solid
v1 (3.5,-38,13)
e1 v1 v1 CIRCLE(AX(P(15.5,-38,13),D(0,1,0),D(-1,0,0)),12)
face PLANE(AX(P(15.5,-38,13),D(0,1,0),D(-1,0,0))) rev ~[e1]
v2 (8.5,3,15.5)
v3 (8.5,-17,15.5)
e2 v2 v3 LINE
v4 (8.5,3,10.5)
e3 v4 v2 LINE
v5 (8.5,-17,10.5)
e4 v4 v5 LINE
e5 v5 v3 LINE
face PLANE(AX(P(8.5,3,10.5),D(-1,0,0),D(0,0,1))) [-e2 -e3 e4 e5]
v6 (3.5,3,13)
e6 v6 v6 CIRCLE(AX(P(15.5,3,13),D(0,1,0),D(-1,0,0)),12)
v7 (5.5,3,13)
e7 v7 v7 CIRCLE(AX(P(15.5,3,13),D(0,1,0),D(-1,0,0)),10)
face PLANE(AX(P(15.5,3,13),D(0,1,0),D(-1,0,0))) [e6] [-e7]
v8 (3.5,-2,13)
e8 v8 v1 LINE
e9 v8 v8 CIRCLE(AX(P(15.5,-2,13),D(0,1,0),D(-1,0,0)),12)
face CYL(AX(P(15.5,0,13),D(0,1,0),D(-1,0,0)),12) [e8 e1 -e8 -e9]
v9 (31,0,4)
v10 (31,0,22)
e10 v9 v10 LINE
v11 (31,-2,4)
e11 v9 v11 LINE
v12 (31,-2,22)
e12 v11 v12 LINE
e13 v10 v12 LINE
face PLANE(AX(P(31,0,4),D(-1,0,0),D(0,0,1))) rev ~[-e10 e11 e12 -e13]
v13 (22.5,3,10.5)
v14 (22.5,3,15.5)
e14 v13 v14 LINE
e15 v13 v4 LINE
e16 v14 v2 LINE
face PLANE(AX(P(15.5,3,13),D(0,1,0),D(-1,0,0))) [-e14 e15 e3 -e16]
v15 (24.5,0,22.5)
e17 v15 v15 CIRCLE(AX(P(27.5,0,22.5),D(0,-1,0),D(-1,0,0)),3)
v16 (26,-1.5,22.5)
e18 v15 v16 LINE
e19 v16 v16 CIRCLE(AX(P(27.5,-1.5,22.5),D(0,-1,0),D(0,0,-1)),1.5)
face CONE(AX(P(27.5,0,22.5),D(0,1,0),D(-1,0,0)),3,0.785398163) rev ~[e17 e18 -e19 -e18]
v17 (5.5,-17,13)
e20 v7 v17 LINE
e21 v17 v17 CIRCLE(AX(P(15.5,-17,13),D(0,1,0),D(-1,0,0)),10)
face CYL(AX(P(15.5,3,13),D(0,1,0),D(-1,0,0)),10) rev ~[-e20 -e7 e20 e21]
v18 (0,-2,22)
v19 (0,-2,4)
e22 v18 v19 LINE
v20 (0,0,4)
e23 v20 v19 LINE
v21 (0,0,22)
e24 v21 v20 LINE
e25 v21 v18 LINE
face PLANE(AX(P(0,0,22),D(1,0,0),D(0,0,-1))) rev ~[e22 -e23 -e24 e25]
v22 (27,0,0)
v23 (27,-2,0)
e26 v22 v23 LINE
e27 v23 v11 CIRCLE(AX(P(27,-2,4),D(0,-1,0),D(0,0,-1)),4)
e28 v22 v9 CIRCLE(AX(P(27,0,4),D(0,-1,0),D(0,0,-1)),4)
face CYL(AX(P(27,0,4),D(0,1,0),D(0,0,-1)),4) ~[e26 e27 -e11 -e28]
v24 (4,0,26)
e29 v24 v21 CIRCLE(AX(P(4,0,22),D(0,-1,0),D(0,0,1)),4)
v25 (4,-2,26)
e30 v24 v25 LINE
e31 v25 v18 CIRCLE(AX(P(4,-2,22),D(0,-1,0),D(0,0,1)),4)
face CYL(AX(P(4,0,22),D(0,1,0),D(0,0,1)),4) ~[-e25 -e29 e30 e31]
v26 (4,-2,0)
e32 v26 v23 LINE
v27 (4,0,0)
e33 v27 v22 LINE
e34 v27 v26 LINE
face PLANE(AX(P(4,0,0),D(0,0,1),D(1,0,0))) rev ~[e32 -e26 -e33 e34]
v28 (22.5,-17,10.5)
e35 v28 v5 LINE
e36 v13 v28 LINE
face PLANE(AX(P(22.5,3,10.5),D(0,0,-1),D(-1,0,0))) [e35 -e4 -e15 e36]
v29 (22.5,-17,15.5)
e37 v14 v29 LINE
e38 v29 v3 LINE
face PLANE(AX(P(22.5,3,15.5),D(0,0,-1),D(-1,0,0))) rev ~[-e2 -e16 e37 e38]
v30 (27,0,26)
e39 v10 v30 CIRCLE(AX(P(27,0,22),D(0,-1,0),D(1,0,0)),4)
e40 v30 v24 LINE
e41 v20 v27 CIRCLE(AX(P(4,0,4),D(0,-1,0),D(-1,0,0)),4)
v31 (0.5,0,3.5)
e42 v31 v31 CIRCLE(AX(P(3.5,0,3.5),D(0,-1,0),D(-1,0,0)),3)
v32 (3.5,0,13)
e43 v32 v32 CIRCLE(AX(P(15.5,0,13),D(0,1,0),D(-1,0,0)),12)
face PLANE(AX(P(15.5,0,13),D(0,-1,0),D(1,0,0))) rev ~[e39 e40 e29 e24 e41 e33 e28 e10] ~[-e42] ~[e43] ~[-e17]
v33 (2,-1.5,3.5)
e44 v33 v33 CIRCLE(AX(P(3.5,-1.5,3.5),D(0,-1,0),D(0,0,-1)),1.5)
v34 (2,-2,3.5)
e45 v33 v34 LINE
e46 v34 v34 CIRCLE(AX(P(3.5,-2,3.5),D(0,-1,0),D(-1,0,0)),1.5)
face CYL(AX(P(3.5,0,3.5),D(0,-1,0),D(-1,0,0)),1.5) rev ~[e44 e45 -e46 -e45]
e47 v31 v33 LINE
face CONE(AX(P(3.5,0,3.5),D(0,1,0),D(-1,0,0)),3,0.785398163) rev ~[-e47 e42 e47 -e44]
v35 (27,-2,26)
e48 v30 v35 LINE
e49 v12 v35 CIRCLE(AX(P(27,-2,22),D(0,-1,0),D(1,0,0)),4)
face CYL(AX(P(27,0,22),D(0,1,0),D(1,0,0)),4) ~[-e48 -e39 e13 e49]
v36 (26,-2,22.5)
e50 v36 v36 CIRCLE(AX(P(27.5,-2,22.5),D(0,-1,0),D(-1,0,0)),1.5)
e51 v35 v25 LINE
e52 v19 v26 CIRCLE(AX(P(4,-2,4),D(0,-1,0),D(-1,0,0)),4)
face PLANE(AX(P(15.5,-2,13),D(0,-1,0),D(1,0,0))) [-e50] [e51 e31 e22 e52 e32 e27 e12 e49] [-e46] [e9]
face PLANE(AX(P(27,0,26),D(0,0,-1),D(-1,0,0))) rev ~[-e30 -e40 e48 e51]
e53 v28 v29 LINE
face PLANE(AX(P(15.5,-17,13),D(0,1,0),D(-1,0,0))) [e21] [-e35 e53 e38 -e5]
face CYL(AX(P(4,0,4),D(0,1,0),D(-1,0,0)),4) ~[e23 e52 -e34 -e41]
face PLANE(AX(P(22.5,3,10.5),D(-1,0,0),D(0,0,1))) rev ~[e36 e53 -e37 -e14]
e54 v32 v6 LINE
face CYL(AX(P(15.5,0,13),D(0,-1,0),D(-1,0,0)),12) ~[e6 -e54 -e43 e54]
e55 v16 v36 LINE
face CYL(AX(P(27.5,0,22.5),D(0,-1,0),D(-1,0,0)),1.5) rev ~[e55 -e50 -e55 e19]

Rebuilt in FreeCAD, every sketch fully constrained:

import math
import FreeCAD as App
import Part
import Sketcher

V = App.Vector

doc = App.newDocument("Part")
body = doc.addObject("PartDesign::Body", "Body")

# Sketch on XZ plane
sketch1 = body.newObject("Sketcher::SketchObject", "Sketch")
sketch1.AttachmentSupport = (doc.getObject("XZ_Plane"), [""])
sketch1.MapMode = "FlatFace"
sketch1.addGeometry(Part.ArcOfCircle(Part.Circle(V(4, 4, 0), V(0, 0, 1), 4), math.radians(180), math.radians(270)), False)
sketch1.addGeometry(Part.LineSegment(V(4, 0, 0), V(27, 0, 0)), False)
sketch1.addGeometry(Part.ArcOfCircle(Part.Circle(V(27, 4, 0), V(0, 0, 1), 4), math.radians(-90), math.radians(0)), False)
sketch1.addGeometry(Part.LineSegment(V(31, 4, 0), V(31, 22, 0)), False)
sketch1.addGeometry(Part.ArcOfCircle(Part.Circle(V(27, 22, 0), V(0, 0, 1), 4), math.radians(0), math.radians(90)), False)
sketch1.addGeometry(Part.LineSegment(V(27, 26, 0), V(4, 26, 0)), False)
sketch1.addGeometry(Part.ArcOfCircle(Part.Circle(V(4, 22, 0), V(0, 0, 1), 4), math.radians(90), math.radians(180)), False)
sketch1.addGeometry(Part.LineSegment(V(0, 22, 0), V(0, 4, 0)), False)
sketch1.addConstraint(Sketcher.Constraint("Tangent", 0, 2, 1, 1))
sketch1.addConstraint(Sketcher.Constraint("Tangent", 1, 2, 2, 1))
sketch1.addConstraint(Sketcher.Constraint("Tangent", 2, 2, 3, 1))
sketch1.addConstraint(Sketcher.Constraint("Tangent", 3, 2, 4, 1))
sketch1.addConstraint(Sketcher.Constraint("Tangent", 4, 2, 5, 1))
sketch1.addConstraint(Sketcher.Constraint("Tangent", 5, 2, 6, 1))
sketch1.addConstraint(Sketcher.Constraint("Tangent", 6, 2, 7, 1))
sketch1.addConstraint(Sketcher.Constraint("Tangent", 7, 2, 0, 1))
sketch1.addConstraint(Sketcher.Constraint("Horizontal", 1))
sketch1.addConstraint(Sketcher.Constraint("Vertical", 3))
sketch1.addConstraint(Sketcher.Constraint("Horizontal", 5))
sketch1.addConstraint(Sketcher.Constraint("Vertical", 7))
sketch1.addConstraint(Sketcher.Constraint("Equal", 0, 2))
sketch1.addConstraint(Sketcher.Constraint("Equal", 2, 4))
sketch1.addConstraint(Sketcher.Constraint("Equal", 4, 6))
sketch1.addConstraint(Sketcher.Constraint("PointOnObject", 0, 2, -1))
sketch1.addConstraint(Sketcher.Constraint("PointOnObject", 6, 2, -2))
sketch1.addConstraint(Sketcher.Constraint("Radius", 0, 4.0))
sketch1.addConstraint(Sketcher.Constraint("DistanceX", 1, 1, 1, 2, 23.0))
sketch1.addConstraint(Sketcher.Constraint("DistanceY", 3, 1, 3, 2, 18.0))
pad1 = body.newObject("PartDesign::Pad", "Pad")
pad1.Profile = sketch1
pad1.Length = 2

# Sketch on XZ plane
sketch2 = body.newObject("Sketcher::SketchObject", "Sketch001")
sketch2.AttachmentSupport = (doc.getObject("XZ_Plane"), [""])
sketch2.MapMode = "FlatFace"
sketch2.addGeometry(Part.Circle(V(27.5, 22.5, 0), V(0, 0, 1), 1.5), False)
sketch2.addGeometry(Part.Circle(V(3.5, 3.5, 0), V(0, 0, 1), 1.5), False)
sketch2.addConstraint(Sketcher.Constraint("Equal", 0, 1))
sketch2.addConstraint(Sketcher.Constraint("Diameter", 0, 3.0))
sketch2.addConstraint(Sketcher.Constraint("DistanceX", 1, 3, 0, 3, 24.0))
sketch2.addConstraint(Sketcher.Constraint("DistanceY", 1, 3, 0, 3, 19.0))
sketch2.addConstraint(Sketcher.Constraint("DistanceX", -1, 1, 0, 3, 27.5))
sketch2.addConstraint(Sketcher.Constraint("DistanceY", -1, 1, 0, 3, 22.5))
doc.recompute()
hole = body.newObject("PartDesign::Hole", "Hole")
hole.Profile = sketch2
hole.ThreadType = "None"
hole.Diameter = 3
hole.DepthType = "ThroughAll"
hole.HoleCutType = "Countersink"
hole.HoleCutDiameter = 6
hole.HoleCutCountersinkAngle = 90
hole.Reversed = True

# Sketch on XZ plane
sketch3 = body.newObject("Sketcher::SketchObject", "Sketch002")
sketch3.AttachmentSupport = (doc.getObject("XZ_Plane"), [""])
sketch3.MapMode = "FlatFace"
sketch3.addGeometry(Part.Circle(V(16, 13, 0), V(0, 0, 1), 12), False)
sketch3.addConstraint(Sketcher.Constraint("Diameter", 0, 24.0))
sketch3.addConstraint(Sketcher.Constraint("DistanceY", -1, 1, 0, 3, 13.0))
sketch3.addConstraint(Sketcher.Constraint("DistanceX", -1, 1, 0, 3, 15.5))
pad2 = body.newObject("PartDesign::Pad", "Pad001")
pad2.Profile = sketch3
pad2.Length = 3
pad2.Reversed = True

# Sketch on XZ plane
sketch4 = body.newObject("Sketcher::SketchObject", "Sketch003")
sketch4.AttachmentSupport = (doc.getObject("XZ_Plane"), [""])
sketch4.MapMode = "FlatFace"
sketch4.addGeometry(Part.Circle(V(16, 13, 0), V(0, 0, 1), 12), False)
sketch4.addConstraint(Sketcher.Constraint("Diameter", 0, 24.0))
sketch4.addConstraint(Sketcher.Constraint("DistanceY", -1, 1, 0, 3, 13.0))
sketch4.addConstraint(Sketcher.Constraint("DistanceX", -1, 1, 0, 3, 15.5))
pad3 = body.newObject("PartDesign::Pad", "Pad002")
pad3.Profile = sketch4
pad3.Length = 38

# Sketch on XZ plane
sketch5 = body.newObject("Sketcher::SketchObject", "Sketch004")
sketch5.AttachmentSupport = (doc.getObject("XZ_Plane"), [""])
sketch5.MapMode = "FlatFace"
sketch5.AttachmentOffset = App.Placement(V(0, 0, -3), App.Rotation())
sketch5.addGeometry(Part.Circle(V(16, 13, 0), V(0, 0, 1), 10), False)
sketch5.addGeometry(Part.LineSegment(V(8, 10, 0), V(22, 10, 0)), False)
sketch5.addGeometry(Part.LineSegment(V(22, 10, 0), V(22, 16, 0)), False)
sketch5.addGeometry(Part.LineSegment(V(22, 16, 0), V(8, 16, 0)), False)
sketch5.addGeometry(Part.LineSegment(V(8, 16, 0), V(8, 10, 0)), False)
sketch5.addConstraint(Sketcher.Constraint("Coincident", 1, 2, 2, 1))
sketch5.addConstraint(Sketcher.Constraint("Coincident", 2, 2, 3, 1))
sketch5.addConstraint(Sketcher.Constraint("Coincident", 3, 2, 4, 1))
sketch5.addConstraint(Sketcher.Constraint("Coincident", 4, 2, 1, 1))
sketch5.addConstraint(Sketcher.Constraint("Horizontal", 1))
sketch5.addConstraint(Sketcher.Constraint("Vertical", 2))
sketch5.addConstraint(Sketcher.Constraint("Horizontal", 3))
sketch5.addConstraint(Sketcher.Constraint("Vertical", 4))
sketch5.addConstraint(Sketcher.Constraint("Diameter", 0, 20.0))
sketch5.addConstraint(Sketcher.Constraint("DistanceX", 1, 1, 1, 2, 14.0))
sketch5.addConstraint(Sketcher.Constraint("DistanceY", 2, 1, 2, 2, 5.0))
sketch5.addConstraint(Sketcher.Constraint("DistanceY", -1, 1, 0, 3, 13.0))
sketch5.addConstraint(Sketcher.Constraint("DistanceX", 0, 3, 1, 2, 7.0))
sketch5.addConstraint(Sketcher.Constraint("DistanceX", -1, 1, 0, 3, 15.5))
sketch5.addConstraint(Sketcher.Constraint("DistanceY", -1, 1, 1, 2, 10.5))
pocket1 = body.newObject("PartDesign::Pocket", "Pocket")
pocket1.Profile = sketch5
pocket1.Length = 20
pocket1.Reversed = True

doc.recompute()
